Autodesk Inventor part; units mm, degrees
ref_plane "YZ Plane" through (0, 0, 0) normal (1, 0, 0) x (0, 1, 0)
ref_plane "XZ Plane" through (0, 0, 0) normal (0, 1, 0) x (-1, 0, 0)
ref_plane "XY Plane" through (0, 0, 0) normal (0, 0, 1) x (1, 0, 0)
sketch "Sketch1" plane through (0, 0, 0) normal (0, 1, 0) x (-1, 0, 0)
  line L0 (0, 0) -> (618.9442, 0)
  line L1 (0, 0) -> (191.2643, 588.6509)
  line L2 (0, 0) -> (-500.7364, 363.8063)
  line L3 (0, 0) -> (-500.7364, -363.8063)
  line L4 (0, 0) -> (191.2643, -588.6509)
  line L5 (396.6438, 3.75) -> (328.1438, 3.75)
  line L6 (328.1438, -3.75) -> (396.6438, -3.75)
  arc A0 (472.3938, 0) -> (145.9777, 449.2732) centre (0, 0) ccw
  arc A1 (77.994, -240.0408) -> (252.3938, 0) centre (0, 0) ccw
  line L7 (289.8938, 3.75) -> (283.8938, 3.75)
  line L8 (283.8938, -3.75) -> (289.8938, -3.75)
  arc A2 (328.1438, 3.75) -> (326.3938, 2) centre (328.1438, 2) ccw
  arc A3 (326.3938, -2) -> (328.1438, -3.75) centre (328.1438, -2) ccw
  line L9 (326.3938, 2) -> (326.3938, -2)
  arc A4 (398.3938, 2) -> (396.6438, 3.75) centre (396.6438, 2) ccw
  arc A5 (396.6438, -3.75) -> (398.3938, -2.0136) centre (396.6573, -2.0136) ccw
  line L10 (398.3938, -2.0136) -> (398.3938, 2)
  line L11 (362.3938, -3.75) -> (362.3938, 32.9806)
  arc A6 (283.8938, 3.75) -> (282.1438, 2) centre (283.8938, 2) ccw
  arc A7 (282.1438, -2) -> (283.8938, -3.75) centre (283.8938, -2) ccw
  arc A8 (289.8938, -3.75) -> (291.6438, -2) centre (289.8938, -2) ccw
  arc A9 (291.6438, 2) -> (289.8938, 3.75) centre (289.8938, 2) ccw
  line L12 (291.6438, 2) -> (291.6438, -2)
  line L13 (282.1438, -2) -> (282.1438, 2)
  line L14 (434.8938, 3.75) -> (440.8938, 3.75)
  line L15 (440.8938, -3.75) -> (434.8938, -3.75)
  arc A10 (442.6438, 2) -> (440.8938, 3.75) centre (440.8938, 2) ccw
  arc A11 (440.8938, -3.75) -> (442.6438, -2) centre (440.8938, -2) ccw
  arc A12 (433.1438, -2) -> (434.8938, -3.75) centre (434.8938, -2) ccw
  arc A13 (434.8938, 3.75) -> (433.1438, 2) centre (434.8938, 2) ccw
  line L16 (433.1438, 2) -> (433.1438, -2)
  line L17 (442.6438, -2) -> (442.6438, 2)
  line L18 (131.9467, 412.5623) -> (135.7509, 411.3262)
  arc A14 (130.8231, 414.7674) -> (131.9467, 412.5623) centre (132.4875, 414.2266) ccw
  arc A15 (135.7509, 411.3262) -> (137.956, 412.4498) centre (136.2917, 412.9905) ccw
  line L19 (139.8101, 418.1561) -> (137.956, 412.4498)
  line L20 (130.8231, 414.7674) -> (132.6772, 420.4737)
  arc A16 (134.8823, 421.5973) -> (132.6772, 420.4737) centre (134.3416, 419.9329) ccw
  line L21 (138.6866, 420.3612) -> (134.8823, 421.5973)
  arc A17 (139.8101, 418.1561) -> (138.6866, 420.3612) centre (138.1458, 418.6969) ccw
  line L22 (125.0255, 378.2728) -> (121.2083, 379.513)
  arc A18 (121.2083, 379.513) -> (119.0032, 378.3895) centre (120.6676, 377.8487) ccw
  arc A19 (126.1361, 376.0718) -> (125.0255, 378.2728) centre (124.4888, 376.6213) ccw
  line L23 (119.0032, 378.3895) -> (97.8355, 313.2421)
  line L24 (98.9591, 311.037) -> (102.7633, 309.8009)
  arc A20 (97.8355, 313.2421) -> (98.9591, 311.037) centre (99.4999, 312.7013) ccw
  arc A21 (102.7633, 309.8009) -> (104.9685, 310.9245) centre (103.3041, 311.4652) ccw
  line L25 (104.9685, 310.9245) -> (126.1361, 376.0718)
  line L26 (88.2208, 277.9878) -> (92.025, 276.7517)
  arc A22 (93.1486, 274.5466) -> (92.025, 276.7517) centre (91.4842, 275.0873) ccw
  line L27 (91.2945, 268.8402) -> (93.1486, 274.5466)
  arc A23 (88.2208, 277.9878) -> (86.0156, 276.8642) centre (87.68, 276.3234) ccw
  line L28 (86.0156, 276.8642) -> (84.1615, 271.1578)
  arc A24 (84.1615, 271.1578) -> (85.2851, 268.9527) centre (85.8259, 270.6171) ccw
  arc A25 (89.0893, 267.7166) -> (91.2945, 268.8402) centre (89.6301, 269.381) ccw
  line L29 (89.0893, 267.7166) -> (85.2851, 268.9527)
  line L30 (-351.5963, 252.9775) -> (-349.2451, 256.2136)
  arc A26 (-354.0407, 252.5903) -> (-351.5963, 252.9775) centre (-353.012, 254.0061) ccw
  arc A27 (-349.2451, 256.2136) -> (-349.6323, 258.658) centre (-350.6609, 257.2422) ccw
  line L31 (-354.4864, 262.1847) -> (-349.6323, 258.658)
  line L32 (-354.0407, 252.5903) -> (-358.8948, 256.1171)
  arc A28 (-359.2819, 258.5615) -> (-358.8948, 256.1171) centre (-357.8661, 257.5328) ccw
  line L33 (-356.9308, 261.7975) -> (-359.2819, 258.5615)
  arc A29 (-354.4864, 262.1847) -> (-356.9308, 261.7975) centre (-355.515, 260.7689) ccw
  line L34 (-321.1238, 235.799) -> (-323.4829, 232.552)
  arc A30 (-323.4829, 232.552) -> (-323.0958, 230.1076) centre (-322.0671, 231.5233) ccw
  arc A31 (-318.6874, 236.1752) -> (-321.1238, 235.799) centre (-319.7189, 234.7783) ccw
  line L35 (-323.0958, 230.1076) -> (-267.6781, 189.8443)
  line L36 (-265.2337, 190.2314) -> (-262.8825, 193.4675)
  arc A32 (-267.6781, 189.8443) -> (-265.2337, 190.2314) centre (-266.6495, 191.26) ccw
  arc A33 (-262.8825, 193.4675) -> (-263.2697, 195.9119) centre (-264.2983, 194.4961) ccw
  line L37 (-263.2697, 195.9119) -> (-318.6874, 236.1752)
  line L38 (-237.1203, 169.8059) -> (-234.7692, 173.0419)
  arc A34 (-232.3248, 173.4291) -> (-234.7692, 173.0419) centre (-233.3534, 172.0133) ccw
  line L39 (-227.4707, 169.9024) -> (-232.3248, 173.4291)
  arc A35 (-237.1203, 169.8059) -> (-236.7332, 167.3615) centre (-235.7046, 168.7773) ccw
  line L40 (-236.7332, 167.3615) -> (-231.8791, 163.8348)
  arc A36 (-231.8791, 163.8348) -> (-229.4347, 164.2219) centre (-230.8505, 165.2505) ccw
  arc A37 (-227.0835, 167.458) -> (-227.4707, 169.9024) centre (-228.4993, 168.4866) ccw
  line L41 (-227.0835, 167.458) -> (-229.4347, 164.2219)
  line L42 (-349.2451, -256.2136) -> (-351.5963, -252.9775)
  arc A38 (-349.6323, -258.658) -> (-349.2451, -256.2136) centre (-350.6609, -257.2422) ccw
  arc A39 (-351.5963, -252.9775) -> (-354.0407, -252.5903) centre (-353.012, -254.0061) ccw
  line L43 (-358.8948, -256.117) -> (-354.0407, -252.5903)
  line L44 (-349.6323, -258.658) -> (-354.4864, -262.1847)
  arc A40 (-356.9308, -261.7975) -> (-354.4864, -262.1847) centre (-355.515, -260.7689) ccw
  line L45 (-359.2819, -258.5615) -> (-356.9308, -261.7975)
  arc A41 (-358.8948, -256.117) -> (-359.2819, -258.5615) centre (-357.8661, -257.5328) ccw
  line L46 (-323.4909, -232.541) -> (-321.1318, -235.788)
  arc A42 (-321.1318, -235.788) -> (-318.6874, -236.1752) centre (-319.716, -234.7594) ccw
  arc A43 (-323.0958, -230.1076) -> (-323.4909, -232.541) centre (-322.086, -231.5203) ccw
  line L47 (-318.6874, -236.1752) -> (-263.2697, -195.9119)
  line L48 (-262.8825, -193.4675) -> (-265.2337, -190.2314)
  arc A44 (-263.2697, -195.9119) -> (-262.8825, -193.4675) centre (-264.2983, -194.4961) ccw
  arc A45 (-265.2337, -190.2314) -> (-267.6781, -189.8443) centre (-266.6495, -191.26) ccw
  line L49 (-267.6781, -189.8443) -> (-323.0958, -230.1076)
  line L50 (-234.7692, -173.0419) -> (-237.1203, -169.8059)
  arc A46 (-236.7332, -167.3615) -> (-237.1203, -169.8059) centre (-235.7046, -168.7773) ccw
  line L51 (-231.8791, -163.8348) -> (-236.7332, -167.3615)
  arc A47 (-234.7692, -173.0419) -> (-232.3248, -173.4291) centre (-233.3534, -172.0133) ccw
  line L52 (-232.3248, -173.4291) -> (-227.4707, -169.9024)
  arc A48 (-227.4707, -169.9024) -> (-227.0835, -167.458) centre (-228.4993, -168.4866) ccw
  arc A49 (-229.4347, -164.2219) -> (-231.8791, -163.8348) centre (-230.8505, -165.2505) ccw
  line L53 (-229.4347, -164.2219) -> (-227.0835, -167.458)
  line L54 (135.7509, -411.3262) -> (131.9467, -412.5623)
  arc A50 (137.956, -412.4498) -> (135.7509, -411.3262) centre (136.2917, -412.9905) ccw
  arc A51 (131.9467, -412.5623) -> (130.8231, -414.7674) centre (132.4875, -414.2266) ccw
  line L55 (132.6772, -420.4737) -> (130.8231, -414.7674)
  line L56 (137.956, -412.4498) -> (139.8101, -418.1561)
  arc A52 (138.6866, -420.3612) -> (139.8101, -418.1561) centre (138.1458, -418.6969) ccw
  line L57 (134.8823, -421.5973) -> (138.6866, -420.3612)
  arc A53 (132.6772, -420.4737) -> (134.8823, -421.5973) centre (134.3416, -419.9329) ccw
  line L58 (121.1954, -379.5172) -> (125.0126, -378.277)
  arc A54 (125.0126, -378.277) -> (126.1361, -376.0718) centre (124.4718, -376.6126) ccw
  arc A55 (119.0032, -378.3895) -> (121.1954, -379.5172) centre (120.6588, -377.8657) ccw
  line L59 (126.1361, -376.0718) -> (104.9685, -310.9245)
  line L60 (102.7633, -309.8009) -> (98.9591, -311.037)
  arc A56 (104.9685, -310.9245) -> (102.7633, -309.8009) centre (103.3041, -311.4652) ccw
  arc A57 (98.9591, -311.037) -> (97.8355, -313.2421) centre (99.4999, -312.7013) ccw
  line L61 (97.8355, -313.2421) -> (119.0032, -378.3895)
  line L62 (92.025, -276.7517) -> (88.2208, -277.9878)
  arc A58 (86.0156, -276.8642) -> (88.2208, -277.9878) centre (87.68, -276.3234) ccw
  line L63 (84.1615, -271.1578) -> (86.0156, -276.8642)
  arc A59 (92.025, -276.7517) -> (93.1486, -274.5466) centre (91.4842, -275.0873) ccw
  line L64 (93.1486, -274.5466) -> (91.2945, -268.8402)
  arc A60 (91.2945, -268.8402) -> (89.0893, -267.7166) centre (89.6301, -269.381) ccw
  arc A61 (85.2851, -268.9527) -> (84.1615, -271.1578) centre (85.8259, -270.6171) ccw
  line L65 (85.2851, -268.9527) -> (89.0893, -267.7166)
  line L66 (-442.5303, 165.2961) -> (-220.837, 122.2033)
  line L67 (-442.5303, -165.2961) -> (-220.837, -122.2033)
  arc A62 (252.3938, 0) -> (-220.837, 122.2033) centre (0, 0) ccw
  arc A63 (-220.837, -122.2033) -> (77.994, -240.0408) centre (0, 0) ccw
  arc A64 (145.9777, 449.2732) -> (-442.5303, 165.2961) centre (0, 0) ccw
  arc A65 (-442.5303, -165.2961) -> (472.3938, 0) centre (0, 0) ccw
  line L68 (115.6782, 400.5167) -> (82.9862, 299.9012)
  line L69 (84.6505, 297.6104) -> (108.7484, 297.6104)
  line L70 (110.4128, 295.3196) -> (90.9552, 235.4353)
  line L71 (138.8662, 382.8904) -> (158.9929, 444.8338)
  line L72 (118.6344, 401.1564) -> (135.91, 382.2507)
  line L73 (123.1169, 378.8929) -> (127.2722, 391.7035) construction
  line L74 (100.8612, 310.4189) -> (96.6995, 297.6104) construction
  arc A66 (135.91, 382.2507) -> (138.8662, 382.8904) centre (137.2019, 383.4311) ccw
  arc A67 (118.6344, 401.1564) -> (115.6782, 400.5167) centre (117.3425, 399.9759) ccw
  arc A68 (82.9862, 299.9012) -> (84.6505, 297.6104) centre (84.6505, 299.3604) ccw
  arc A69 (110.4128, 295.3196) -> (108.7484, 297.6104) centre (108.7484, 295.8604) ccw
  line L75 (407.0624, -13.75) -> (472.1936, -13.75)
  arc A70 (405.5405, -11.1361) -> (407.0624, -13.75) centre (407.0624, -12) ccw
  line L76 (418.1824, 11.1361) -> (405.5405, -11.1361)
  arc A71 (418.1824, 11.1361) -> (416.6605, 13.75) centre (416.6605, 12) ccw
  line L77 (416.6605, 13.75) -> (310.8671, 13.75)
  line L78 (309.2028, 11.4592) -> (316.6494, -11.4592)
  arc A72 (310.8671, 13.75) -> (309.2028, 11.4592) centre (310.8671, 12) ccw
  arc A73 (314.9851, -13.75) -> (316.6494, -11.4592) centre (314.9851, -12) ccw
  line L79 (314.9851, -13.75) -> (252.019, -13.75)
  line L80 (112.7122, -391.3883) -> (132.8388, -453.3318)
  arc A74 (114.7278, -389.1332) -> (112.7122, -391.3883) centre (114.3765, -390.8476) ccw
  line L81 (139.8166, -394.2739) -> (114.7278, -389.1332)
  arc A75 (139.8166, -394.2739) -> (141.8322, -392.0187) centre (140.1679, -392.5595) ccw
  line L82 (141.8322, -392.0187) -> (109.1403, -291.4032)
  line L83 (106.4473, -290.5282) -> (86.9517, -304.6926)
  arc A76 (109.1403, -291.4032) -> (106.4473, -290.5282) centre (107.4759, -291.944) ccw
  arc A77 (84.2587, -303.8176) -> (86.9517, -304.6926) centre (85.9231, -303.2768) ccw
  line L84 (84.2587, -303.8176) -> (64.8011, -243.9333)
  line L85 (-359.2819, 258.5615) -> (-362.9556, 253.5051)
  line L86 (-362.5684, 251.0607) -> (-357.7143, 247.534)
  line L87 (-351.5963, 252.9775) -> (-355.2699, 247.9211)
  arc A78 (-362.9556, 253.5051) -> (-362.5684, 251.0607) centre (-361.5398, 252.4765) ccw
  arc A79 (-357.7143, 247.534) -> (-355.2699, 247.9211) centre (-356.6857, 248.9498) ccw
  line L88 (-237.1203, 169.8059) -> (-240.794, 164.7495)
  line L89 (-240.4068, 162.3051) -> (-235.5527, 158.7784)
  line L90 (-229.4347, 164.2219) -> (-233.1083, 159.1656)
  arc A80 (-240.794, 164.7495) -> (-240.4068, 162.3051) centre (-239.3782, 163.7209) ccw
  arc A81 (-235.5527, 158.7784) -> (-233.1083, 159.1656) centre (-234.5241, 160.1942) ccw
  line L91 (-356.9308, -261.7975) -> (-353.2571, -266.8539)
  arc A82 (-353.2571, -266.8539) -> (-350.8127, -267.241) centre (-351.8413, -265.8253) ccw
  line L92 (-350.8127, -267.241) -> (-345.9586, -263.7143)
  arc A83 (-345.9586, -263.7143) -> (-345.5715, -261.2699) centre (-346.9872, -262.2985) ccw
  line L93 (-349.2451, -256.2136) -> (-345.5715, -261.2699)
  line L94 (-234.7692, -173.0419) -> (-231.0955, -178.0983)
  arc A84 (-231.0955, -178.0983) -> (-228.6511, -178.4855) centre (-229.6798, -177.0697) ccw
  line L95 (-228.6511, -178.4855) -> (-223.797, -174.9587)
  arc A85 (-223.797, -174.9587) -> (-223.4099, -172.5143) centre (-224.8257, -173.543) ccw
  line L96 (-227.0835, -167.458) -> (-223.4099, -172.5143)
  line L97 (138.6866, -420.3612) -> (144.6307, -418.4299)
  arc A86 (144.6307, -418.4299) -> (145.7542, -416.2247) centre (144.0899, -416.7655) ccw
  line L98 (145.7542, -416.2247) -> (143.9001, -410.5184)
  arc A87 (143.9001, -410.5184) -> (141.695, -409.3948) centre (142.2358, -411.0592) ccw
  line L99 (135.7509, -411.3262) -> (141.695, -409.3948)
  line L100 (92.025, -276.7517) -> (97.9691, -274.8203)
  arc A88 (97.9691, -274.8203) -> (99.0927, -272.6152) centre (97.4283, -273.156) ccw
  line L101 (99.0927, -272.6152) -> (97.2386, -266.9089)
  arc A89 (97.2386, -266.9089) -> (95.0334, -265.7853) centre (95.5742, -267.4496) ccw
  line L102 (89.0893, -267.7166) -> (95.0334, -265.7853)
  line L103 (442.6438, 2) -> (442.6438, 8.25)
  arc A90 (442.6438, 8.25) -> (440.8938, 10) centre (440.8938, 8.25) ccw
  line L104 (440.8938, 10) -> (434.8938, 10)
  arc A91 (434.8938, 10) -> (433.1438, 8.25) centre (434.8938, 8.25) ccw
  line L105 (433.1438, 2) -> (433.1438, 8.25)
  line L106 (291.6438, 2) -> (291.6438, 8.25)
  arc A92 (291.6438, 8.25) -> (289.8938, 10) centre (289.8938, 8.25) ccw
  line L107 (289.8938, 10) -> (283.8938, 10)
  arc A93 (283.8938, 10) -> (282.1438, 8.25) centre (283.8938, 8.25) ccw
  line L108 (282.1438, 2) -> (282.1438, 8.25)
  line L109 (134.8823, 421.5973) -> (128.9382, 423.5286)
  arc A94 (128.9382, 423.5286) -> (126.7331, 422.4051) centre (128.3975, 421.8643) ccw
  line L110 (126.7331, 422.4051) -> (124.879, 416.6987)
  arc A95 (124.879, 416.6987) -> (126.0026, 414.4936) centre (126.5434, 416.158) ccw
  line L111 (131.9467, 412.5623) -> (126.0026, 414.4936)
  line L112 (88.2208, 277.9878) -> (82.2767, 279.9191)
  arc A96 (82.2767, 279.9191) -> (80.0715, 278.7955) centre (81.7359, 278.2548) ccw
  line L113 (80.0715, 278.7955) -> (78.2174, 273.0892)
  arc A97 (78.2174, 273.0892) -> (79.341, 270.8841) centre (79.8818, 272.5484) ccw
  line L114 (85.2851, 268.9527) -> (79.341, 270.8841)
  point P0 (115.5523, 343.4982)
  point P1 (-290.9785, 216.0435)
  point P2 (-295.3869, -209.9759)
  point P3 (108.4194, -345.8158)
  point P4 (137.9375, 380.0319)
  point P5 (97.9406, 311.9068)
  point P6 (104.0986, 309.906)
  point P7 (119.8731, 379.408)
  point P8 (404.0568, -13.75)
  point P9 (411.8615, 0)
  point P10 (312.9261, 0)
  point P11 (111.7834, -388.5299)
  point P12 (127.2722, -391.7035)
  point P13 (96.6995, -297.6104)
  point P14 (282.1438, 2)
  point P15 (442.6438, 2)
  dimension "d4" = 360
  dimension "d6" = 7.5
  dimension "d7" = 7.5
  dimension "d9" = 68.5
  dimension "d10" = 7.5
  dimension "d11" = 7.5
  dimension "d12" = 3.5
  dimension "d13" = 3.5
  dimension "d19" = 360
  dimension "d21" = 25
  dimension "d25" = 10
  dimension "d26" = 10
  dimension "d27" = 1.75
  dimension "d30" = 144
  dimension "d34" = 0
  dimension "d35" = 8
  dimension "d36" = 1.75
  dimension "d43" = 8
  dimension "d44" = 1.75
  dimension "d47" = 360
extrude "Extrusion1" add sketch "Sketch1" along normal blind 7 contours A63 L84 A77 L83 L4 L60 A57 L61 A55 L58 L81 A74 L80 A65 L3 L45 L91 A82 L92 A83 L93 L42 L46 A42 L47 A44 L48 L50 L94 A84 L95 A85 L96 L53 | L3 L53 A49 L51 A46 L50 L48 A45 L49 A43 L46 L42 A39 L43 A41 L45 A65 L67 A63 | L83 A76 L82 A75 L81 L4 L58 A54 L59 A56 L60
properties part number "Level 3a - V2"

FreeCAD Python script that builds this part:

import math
import FreeCAD as App
import Part
import Sketcher
from FreeCAD import Vector
Q = App.Units.Quantity

doc = App.newDocument("Part")
body = doc.addObject("PartDesign::Body", "Body")

sketch1 = body.newObject("Sketcher::SketchObject", "Sketch")
sketch1.AttachmentSupport = (doc.getObject("XZ_Plane"), [""])
sketch1.MapMode = "FlatFace"
sketch1.addGeometry([
    Part.ArcOfCircle(Part.Circle(Vector(0, 0, 0), Vector(0, 0, 1), 252.393838), math.radians(-104.877068), math.radians(-28.958574)),
    Part.LineSegment(Vector(220.837, -122.2033, 0), Vector(442.5303, -165.2961, 0)),
    Part.ArcOfCircle(Part.Circle(Vector(0, 0, 0), Vector(0, 0, 1), 472.393795), math.radians(-106.332049), math.radians(-20.481914)),
    Part.LineSegment(Vector(-132.8388, -453.3318, 0), Vector(-112.7122, -391.3883, 0)),
    Part.ArcOfCircle(Part.Circle(Vector(-114.3765, -390.8476, 0), Vector(0, 0, 1), 1.750023), math.radians(-17.998012), math.radians(101.580251)),
    Part.LineSegment(Vector(-114.7278, -389.1332, 0), Vector(-139.8166, -394.2739, 0)),
    Part.ArcOfCircle(Part.Circle(Vector(-140.1679, -392.5595, 0), Vector(0, 0, 1), 1.750023), math.radians(161.998874), math.radians(281.580251)),
    Part.LineSegment(Vector(-141.8322, -392.0187, 0), Vector(-109.1403, -291.4032, 0)),
    Part.ArcOfCircle(Part.Circle(Vector(-107.4759, -291.944, 0), Vector(0, 0, 1), 1.750055), math.radians(54.001031), math.radians(161.999886)),
    Part.LineSegment(Vector(-106.4473, -290.5282, 0), Vector(-86.9517, -304.6926, 0)),
    Part.ArcOfCircle(Part.Circle(Vector(-85.9231, -303.2768, 0), Vector(0, 0, 1), 1.750055), math.radians(-125.998969), math.radians(-18.000114)),
    Part.LineSegment(Vector(-84.2587, -303.8176, 0), Vector(-64.8011, -243.9333, 0)),
    Part.LineSegment(Vector(-98.9591, -311.037, 0), Vector(-102.7633, -309.8009, 0)),
    Part.ArcOfCircle(Part.Circle(Vector(-103.3041, -311.4652, 0), Vector(0, 0, 1), 1.750024), math.radians(71.998874), math.radians(162.003)),
    Part.LineSegment(Vector(-104.9685, -310.9245, 0), Vector(-126.1361, -376.0718, 0)),
    Part.ArcOfCircle(Part.Circle(Vector(-124.4718, -376.6126, 0), Vector(0, 0, 1), 1.750055), math.radians(161.998874), math.radians(251.999886)),
    Part.LineSegment(Vector(-125.0126, -378.277, 0), Vector(-121.1954, -379.5172, 0)),
    Part.ArcOfCircle(Part.Circle(Vector(-120.6588, -377.8657, 0), Vector(0, 0, 1), 1.736484), math.radians(-107.999847), math.radians(-17.55637)),
    Part.LineSegment(Vector(-119.0032, -378.3895, 0), Vector(-97.8355, -313.2421, 0)),
    Part.ArcOfCircle(Part.Circle(Vector(-99.4999, -312.7013, 0), Vector(0, 0, 1), 1.74996), math.radians(-18.000114), math.radians(71.998874)),
    Part.LineSegment(Vector(356.9308, -261.7975, 0), Vector(359.2819, -258.5615, 0)),
    Part.ArcOfCircle(Part.Circle(Vector(357.8661, -257.5328, 0), Vector(0, 0, 1), 1.750061), math.radians(-36.001618), math.radians(53.998382)),
    Part.LineSegment(Vector(358.8948, -256.117, 0), Vector(354.0407, -252.5903, 0)),
    Part.ArcOfCircle(Part.Circle(Vector(353.012, -254.0061, 0), Vector(0, 0, 1), 1.749921), math.radians(53.998382), math.radians(143.999106)),
    Part.LineSegment(Vector(351.5963, -252.9775, 0), Vector(349.2451, -256.2136, 0)),
    Part.LineSegment(Vector(349.2451, -256.2136, 0), Vector(345.5715, -261.2699, 0)),
    Part.ArcOfCircle(Part.Circle(Vector(346.9872, -262.2985, 0), Vector(0, 0, 1), 1.750002), math.radians(143.999106), math.radians(234.001031)),
    Part.LineSegment(Vector(345.9586, -263.7143, 0), Vector(350.8127, -267.241, 0)),
    Part.ArcOfCircle(Part.Circle(Vector(351.8413, -265.8253, 0), Vector(0, 0, 1), 1.750002), math.radians(-126.000894), math.radians(-35.998969)),
    Part.LineSegment(Vector(353.2571, -266.8539, 0), Vector(356.9308, -261.7975, 0)),
    Part.LineSegment(Vector(321.1318, -235.788, 0), Vector(323.4909, -232.541, 0)),
    Part.ArcOfCircle(Part.Circle(Vector(322.086, -231.5203, 0), Vector(0, 0, 1), 1.736496), math.radians(-35.999477), math.radians(54.442761)),
    Part.LineSegment(Vector(323.0958, -230.1076, 0), Vector(267.6781, -189.8443, 0)),
    Part.ArcOfCircle(Part.Circle(Vector(266.6495, -191.26, 0), Vector(0, 0, 1), 1.750002), math.radians(53.999106), math.radians(144.001031)),
    Part.LineSegment(Vector(265.2337, -190.2314, 0), Vector(262.8825, -193.4675, 0)),
    Part.ArcOfCircle(Part.Circle(Vector(264.2983, -194.4961, 0), Vector(0, 0, 1), 1.750002), math.radians(144.001031), math.radians(234.001031)),
    Part.LineSegment(Vector(263.2697, -195.9119, 0), Vector(318.6874, -236.1752, 0)),
    Part.ArcOfCircle(Part.Circle(Vector(319.716, -234.7594, 0), Vector(0, 0, 1), 1.750002), math.radians(-125.998969), math.radians(-35.998969)),
    Part.LineSegment(Vector(234.7692, -173.0419, 0), Vector(237.1203, -169.8059, 0)),
    Part.ArcOfCircle(Part.Circle(Vector(235.7046, -168.7773, 0), Vector(0, 0, 1), 1.750002), math.radians(-36.000894), math.radians(54.001031)),
    Part.LineSegment(Vector(236.7332, -167.3615, 0), Vector(231.8791, -163.8348, 0)),
    Part.ArcOfCircle(Part.Circle(Vector(230.8505, -165.2505, 0), Vector(0, 0, 1), 1.750002), math.radians(53.999106), math.radians(144.001031)),
    Part.LineSegment(Vector(229.4347, -164.2219, 0), Vector(227.0835, -167.458, 0)),
    Part.LineSegment(Vector(227.0835, -167.458, 0), Vector(223.4099, -172.5143, 0)),
    Part.ArcOfCircle(Part.Circle(Vector(224.8257, -173.543, 0), Vector(0, 0, 1), 1.74998), math.radians(143.998382), math.radians(233.996457)),
    Part.LineSegment(Vector(223.797, -174.9587, 0), Vector(228.6511, -178.4855, 0)),
    Part.ArcOfCircle(Part.Circle(Vector(229.6798, -177.0697, 0), Vector(0, 0, 1), 1.749921), math.radians(-126.001618), math.radians(-36.000894)),
    Part.LineSegment(Vector(231.0955, -178.0983, 0), Vector(234.7692, -173.0419, 0)),
], False)
sketch1.addConstraint([
    Sketcher.Constraint("Coincident", 0, 2, 1, 1),
    Sketcher.Constraint("Coincident", 1, 2, 2, 2),
    Sketcher.Constraint("Coincident", 2, 1, 3, 1),
    Sketcher.Constraint("Tangent", 3, 2, 4, 1),
    Sketcher.Constraint("Tangent", 4, 2, 5, 1),
    Sketcher.Constraint("Tangent", 5, 2, 6, 2),
    Sketcher.Constraint("Tangent", 6, 1, 7, 1),
    Sketcher.Constraint("Tangent", 7, 2, 8, 2),
    Sketcher.Constraint("Tangent", 8, 1, 9, 1),
    Sketcher.Constraint("Tangent", 9, 2, 10, 1),
    Sketcher.Constraint("Tangent", 10, 2, 11, 1),
    Sketcher.Constraint("Coincident", 11, 2, 0, 1),
    Sketcher.Constraint("Tangent", 12, 2, 13, 1),
    Sketcher.Constraint("Tangent", 13, 2, 14, 1),
    Sketcher.Constraint("Tangent", 14, 2, 15, 1),
    Sketcher.Constraint("Tangent", 15, 2, 16, 1),
    Sketcher.Constraint("Tangent", 16, 2, 17, 1),
    Sketcher.Constraint("Coincident", 17, 2, 18, 1),
    Sketcher.Constraint("Tangent", 18, 2, 19, 1),
    Sketcher.Constraint("Tangent", 19, 2, 12, 1),
    Sketcher.Constraint("Tangent", 20, 2, 21, 1),
    Sketcher.Constraint("Tangent", 21, 2, 22, 1),
    Sketcher.Constraint("Tangent", 22, 2, 23, 1),
    Sketcher.Constraint("Tangent", 23, 2, 24, 1),
    Sketcher.Constraint("Coincident", 24, 2, 25, 1),
    Sketcher.Constraint("Tangent", 25, 2, 26, 1),
    Sketcher.Constraint("Tangent", 26, 2, 27, 1),
    Sketcher.Constraint("Tangent", 27, 2, 28, 1),
    Sketcher.Constraint("Tangent", 28, 2, 29, 1),
    Sketcher.Constraint("Coincident", 29, 2, 20, 1),
    Sketcher.Constraint("Tangent", 30, 2, 31, 1),
    Sketcher.Constraint("Coincident", 31, 2, 32, 1),
    Sketcher.Constraint("Tangent", 32, 2, 33, 1),
    Sketcher.Constraint("Tangent", 33, 2, 34, 1),
    Sketcher.Constraint("Tangent", 34, 2, 35, 1),
    Sketcher.Constraint("Tangent", 35, 2, 36, 1),
    Sketcher.Constraint("Tangent", 36, 2, 37, 1),
    Sketcher.Constraint("Tangent", 37, 2, 30, 1),
    Sketcher.Constraint("Tangent", 38, 2, 39, 1),
    Sketcher.Constraint("Tangent", 39, 2, 40, 1),
    Sketcher.Constraint("Tangent", 40, 2, 41, 1),
    Sketcher.Constraint("Tangent", 41, 2, 42, 1),
    Sketcher.Constraint("Coincident", 42, 2, 43, 1),
    Sketcher.Constraint("Tangent", 43, 2, 44, 1),
    Sketcher.Constraint("Tangent", 44, 2, 45, 1),
    Sketcher.Constraint("Tangent", 45, 2, 46, 1),
    Sketcher.Constraint("Tangent", 46, 2, 47, 1),
    Sketcher.Constraint("Coincident", 47, 2, 38, 1),
    Sketcher.Constraint("Coincident", 0, 3, -1, 1),
    Sketcher.Constraint("Coincident", 2, 3, -1, 1),
    Sketcher.Constraint("Equal", 4, 6),
    Sketcher.Constraint("Equal", 6, 8),
    Sketcher.Constraint("Equal", 8, 10),
    Sketcher.Constraint("Equal", 10, 13),
    Sketcher.Constraint("Equal", 13, 15),
    Sketcher.Constraint("Equal", 15, 19),
    Sketcher.Constraint("Equal", 19, 21),
    Sketcher.Constraint("Equal", 21, 23),
    Sketcher.Constraint("Equal", 23, 26),
    Sketcher.Constraint("Equal", 26, 28),
    Sketcher.Constraint("Equal", 17, 31),
    Sketcher.Constraint("Equal", 28, 33),
    Sketcher.Constraint("Equal", 33, 35),
    Sketcher.Constraint("Equal", 35, 37),
    Sketcher.Constraint("Equal", 37, 39),
    Sketcher.Constraint("Equal", 39, 41),
    Sketcher.Constraint("Equal", 41, 44),
    Sketcher.Constraint("Equal", 44, 46),
    Sketcher.Constraint("Parallel", 3, 7),
    Sketcher.Constraint("Parallel", 7, 11),
    Sketcher.Constraint("Perpendicular", 11, 12),
    Sketcher.Constraint("Perpendicular", 12, 14),
    Sketcher.Constraint("Perpendicular", 14, 16),
    Sketcher.Constraint("Perpendicular", 16, 18),
    Sketcher.Constraint("Perpendicular", 9, 20),
    Sketcher.Constraint("Perpendicular", 20, 22),
    Sketcher.Constraint("Perpendicular", 22, 24),
    Sketcher.Constraint("Parallel", 24, 25),
    Sketcher.Constraint("Perpendicular", 25, 27),
    Sketcher.Constraint("Perpendicular", 27, 29),
    Sketcher.Constraint("Parallel", 29, 30),
    Sketcher.Constraint("Perpendicular", 30, 32),
    Sketcher.Constraint("Perpendicular", 32, 34),
    Sketcher.Constraint("Perpendicular", 34, 36),
    Sketcher.Constraint("Perpendicular", 36, 38),
    Sketcher.Constraint("Perpendicular", 38, 40),
    Sketcher.Constraint("Perpendicular", 40, 42),
    Sketcher.Constraint("Parallel", 42, 43),
    Sketcher.Constraint("Perpendicular", 43, 45),
    Sketcher.Constraint("Perpendicular", 45, 47),
    Sketcher.Constraint("Equal", 14, 18),
    Sketcher.Constraint("Equal", 12, 20),
    Sketcher.Constraint("Equal", 20, 24),
    Sketcher.Constraint("Equal", 16, 30),
    Sketcher.Constraint("Equal", 18, 32),
    Sketcher.Constraint("Equal", 24, 34),
    Sketcher.Constraint("Equal", 34, 38),
    Sketcher.Constraint("Equal", 27, 40),
    Sketcher.Constraint("Equal", 38, 42),
    Sketcher.Constraint("Equal", 29, 43),
    Sketcher.Constraint("Angle", 22, Q("144 deg")),
    Sketcher.Constraint("Radius", 4, Q("1.75 mm")),
    Sketcher.Constraint("Distance", 14, Q("68.5 mm")),
    Sketcher.Constraint("Angle", 1, Q("-11 deg")),
    Sketcher.Constraint("Angle", 3, Q("72 deg")),
    Sketcher.Constraint("Distance", 12, Q("4 mm")),
    Sketcher.Constraint("Distance", 22, Q("6 mm")),
    Sketcher.Constraint("DistanceX", 19, 3, -1, 1, Q("99.5 mm")),
    Sketcher.Constraint("Angle", 5, Q("-168.4204 deg")),
    Sketcher.Constraint("Radius", 0, Q("252.3938 mm")),
    Sketcher.Constraint("Radius", 2, Q("472.3938 mm")),
    Sketcher.Constraint("Radius", 17, Q("1.7365 mm")),
    Sketcher.Constraint("Distance", 5, Q("25.61 mm")),
    Sketcher.Constraint("Distance", 25, Q("6.25 mm")),
    Sketcher.Constraint("DistanceY", 33, 3, -1, 1, Q("191.26 mm")),
    Sketcher.Constraint("DistanceY", 25, 2, -1, 1, Q("261.27 mm")),
    Sketcher.Constraint("DistanceX", -1, 1, 43, 2, Q("223.41 mm")),
    Sketcher.Constraint("Distance", 9, Q("24.098 mm")),
    Sketcher.Constraint("Distance", 11, Q("62.966 mm")),
    Sketcher.Constraint("DistanceX", 6, 3, -1, 1, Q("140.168 mm")),
    Sketcher.Constraint("DistanceX", 8, 3, -1, 1, Q("107.476 mm")),
    Sketcher.Constraint("DistanceX", -1, 1, 21, 3, Q("357.866 mm")),
    Sketcher.Constraint("DistanceX", -1, 1, 31, 3, Q("322.086 mm")),
    Sketcher.Constraint("DistanceY", 44, 3, -1, 1, Q("173.543 mm")),
    Sketcher.Constraint("DistanceX", -1, 1, 0, 2, Q("220.837 mm")),
    Sketcher.Constraint("DistanceY", 12, 2, -1, 1, Q("309.801 mm")),
])
pad1 = body.newObject("PartDesign::Pad", "Pad")
pad1.Profile = sketch1
pad1.Length = 7
pad1.Reversed = True

doc.recompute()
